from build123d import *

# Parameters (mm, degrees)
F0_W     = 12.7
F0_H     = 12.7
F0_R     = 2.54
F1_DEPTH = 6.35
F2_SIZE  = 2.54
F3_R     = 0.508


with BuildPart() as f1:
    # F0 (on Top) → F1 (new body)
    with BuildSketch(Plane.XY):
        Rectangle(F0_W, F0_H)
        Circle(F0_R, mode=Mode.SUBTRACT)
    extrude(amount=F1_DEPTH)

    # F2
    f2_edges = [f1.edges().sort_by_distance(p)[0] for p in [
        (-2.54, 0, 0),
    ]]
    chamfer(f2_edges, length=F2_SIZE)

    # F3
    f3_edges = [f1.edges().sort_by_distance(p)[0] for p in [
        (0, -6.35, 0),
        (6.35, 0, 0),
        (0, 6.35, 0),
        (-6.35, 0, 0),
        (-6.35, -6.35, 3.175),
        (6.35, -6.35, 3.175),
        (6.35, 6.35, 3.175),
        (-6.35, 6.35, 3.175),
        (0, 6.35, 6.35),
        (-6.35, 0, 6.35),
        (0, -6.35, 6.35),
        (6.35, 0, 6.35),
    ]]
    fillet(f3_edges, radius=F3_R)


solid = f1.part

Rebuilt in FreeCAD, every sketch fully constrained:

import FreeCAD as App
import Part
import Sketcher

V = App.Vector
Q = App.Units.Quantity


def edges_at(feature, points):
    """Names of the edges that pass closest to the given points."""
    edges = feature.Shape.Edges
    near = lambda p: min(range(len(edges)), key=lambda i: edges[i].distToShape(Part.Vertex(*p))[0])
    return sorted({f"Edge{near(p) + 1}" for p in points})


def add_polygon(sketch, points):
    """Adds a closed chain of lines whose ends are joined by coincident constraints."""
    first, n = sketch.GeometryCount, len(points)
    for a, b in zip(points, points[1:] + points[:1]):
        sketch.addGeometry(Part.LineSegment(App.Vector(*a, 0), App.Vector(*b, 0)), False)
    for i in range(n):
        sketch.addConstraint(Sketcher.Constraint("Coincident", first + i, 2, first + (i + 1) % n, 1))

doc = App.newDocument("Part")
body = doc.addObject("PartDesign::Body", "Body")

sketch1 = body.newObject("Sketcher::SketchObject", "Sketch")
sketch1.AttachmentSupport = (doc.getObject("XY_Plane"), [""])
sketch1.MapMode = "FlatFace"
add_polygon(sketch1, [(-6.3, 6.3), (-6.3, -6.3), (6.3, -6.3), (6.3, 6.3)])
sketch1.addGeometry(Part.Circle(V(0, 0, 0), V(0, 0, 1), 2.5), False)
sketch1.addConstraint(Sketcher.Constraint("Vertical", 0))
sketch1.addConstraint(Sketcher.Constraint("Horizontal", 1))
sketch1.addConstraint(Sketcher.Constraint("Vertical", 2))
sketch1.addConstraint(Sketcher.Constraint("Horizontal", 3))
sketch1.addConstraint(Sketcher.Constraint("Coincident", 4, 3, -1, 1))
sketch1.addConstraint(Sketcher.Constraint("Symmetric", 0, 2, 2, 2, -1, 1))
sketch1.addConstraint(Sketcher.Constraint("Equal", 3, 0))
sketch1.addConstraint(Sketcher.Constraint("Diameter", 4, Q("0.2 in")))
sketch1.addConstraint(Sketcher.Constraint("DistanceX", 1, 1, 1, 2, Q("0.5 in")))
pad1 = body.newObject("PartDesign::Pad", "Pad")
pad1.Profile = sketch1
pad1.Length = Q("0.25 in")
doc.recompute()

chamfer = body.newObject("PartDesign::Chamfer", "Chamfer")
chamfer.Base = (pad1, edges_at(pad1, [(-2.54, 0, 0)]))
chamfer.Size = Q("0.1 in")
doc.recompute()

fillet = body.newObject("PartDesign::Fillet", "Fillet")
fillet.Base = (chamfer, edges_at(chamfer, [
    (0, -6.35, 0),
    (6.35, 0, 0),
    (0, 6.35, 0),
    (-6.35, 0, 0),
    (-6.35, -6.35, 3.175),
    (6.35, -6.35, 3.175),
    (6.35, 6.35, 3.175),
    (-6.35, 6.35, 3.175),
    (0, 6.35, 6.35),
    (-6.35, 0, 6.35),
    (0, -6.35, 6.35),
    (6.35, 0, 6.35),
]))
fillet.Radius = Q("0.02 in")

doc.recompute()
